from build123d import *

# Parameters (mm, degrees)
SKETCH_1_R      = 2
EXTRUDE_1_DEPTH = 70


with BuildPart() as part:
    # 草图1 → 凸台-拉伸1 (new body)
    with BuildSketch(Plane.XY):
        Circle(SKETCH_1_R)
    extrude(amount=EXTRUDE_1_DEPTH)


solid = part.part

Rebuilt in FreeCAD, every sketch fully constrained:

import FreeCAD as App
import Part
import Sketcher
from FreeCAD import Vector

doc = App.newDocument("Part")
body = doc.addObject("PartDesign::Body", "Body")

sketch1 = body.newObject("Sketcher::SketchObject", "Sketch")
sketch1.AttachmentSupport = (doc.getObject("XY_Plane"), [""])
sketch1.MapMode = "FlatFace"
sketch1.addGeometry(Part.Circle(Vector(0, 0, 0), Vector(0, 0, 1), 2), False)
sketch1.addConstraint([
    Sketcher.Constraint("Coincident", 0, 3, -1, 1),
    Sketcher.Constraint("Diameter", 0, 4.0),
])
pad1 = body.newObject("PartDesign::Pad", "Pad")
pad1.Profile = sketch1
pad1.Length = 70

doc.recompute()
